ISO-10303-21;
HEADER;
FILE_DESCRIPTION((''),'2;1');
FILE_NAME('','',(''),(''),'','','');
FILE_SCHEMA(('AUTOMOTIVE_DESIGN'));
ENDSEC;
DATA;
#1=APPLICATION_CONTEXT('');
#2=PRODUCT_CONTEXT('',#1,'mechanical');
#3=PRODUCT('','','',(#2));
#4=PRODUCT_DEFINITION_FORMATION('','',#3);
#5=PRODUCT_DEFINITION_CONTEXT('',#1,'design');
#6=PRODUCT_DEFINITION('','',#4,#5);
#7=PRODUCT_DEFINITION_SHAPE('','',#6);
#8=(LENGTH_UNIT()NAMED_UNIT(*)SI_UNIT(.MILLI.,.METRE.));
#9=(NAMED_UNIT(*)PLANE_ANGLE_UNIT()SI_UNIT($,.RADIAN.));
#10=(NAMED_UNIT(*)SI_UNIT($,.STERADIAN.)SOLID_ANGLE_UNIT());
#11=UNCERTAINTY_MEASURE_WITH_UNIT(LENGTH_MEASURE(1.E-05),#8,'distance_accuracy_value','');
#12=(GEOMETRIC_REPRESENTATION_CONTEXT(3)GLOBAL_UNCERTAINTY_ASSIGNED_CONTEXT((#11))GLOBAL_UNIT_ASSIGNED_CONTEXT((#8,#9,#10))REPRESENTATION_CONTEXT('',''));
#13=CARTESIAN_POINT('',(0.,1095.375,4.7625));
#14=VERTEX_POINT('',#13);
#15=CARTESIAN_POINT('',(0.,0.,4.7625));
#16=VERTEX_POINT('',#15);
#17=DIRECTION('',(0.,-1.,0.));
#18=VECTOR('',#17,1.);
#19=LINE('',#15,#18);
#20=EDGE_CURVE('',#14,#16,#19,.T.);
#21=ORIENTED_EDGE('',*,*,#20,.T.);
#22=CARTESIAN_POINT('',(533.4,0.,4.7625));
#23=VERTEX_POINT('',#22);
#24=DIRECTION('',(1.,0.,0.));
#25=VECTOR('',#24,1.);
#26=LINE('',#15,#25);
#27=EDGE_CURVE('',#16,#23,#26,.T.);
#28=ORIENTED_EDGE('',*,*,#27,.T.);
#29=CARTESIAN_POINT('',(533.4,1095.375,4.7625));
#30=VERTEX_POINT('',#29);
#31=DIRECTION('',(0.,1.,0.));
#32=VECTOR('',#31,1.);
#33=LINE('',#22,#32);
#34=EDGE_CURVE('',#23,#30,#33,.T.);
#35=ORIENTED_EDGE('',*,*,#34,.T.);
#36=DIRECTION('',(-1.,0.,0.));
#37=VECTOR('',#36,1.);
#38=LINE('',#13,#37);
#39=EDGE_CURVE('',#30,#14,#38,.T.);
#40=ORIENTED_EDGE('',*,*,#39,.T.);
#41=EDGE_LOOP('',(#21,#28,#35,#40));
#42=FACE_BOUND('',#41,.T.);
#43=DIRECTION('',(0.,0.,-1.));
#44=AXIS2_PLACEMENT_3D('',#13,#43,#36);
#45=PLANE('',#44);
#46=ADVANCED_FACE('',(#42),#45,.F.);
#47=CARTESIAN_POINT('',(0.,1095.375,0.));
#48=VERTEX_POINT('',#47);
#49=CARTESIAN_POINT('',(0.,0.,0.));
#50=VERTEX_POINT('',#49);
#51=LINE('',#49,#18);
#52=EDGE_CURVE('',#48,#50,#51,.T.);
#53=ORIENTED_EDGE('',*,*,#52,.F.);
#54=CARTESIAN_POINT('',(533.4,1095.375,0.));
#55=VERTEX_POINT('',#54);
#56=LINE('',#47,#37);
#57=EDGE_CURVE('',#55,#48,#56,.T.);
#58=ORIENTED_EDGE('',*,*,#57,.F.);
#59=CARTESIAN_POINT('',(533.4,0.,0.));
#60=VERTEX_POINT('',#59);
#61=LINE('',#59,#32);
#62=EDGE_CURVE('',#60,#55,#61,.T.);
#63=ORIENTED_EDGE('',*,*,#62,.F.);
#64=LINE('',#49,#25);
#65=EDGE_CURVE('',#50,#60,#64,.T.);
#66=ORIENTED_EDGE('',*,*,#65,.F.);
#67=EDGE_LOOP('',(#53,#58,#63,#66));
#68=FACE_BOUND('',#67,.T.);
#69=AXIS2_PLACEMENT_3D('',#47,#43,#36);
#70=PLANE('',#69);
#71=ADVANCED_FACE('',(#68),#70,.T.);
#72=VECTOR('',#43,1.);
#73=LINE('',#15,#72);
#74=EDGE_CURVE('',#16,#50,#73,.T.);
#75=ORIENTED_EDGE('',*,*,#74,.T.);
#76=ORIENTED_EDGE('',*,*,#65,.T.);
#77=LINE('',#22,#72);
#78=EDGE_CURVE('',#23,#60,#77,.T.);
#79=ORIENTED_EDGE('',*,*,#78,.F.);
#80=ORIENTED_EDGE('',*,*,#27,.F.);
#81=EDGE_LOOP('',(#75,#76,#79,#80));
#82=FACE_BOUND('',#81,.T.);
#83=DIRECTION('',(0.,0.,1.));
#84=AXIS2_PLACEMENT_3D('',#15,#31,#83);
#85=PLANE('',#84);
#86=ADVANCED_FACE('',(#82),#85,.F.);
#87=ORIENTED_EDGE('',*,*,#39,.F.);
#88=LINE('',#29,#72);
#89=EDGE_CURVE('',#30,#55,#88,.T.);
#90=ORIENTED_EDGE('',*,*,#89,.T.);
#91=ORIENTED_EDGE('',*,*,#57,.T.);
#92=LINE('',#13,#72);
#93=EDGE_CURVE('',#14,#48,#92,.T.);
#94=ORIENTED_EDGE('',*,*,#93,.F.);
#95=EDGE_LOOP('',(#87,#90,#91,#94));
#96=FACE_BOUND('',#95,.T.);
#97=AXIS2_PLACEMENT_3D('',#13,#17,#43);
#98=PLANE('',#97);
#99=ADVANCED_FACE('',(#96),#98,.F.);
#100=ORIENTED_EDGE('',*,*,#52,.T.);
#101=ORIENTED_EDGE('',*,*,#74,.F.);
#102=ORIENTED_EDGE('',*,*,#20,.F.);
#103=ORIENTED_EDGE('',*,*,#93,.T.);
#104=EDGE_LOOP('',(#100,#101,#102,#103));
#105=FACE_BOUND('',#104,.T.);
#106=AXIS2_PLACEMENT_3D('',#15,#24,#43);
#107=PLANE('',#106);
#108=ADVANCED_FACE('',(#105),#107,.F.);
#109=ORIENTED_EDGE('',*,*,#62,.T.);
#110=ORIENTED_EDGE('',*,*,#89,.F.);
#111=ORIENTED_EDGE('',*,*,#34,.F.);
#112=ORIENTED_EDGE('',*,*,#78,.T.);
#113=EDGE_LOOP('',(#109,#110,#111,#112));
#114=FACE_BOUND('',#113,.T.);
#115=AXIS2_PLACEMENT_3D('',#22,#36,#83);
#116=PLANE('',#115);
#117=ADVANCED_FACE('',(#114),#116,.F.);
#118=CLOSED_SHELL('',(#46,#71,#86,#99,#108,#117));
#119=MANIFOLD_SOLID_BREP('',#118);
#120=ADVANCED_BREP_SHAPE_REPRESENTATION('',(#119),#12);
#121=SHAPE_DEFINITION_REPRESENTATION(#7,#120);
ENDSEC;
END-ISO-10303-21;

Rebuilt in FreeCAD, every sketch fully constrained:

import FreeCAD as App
import Part
import Sketcher
from FreeCAD import Vector
Q = App.Units.Quantity

doc = App.newDocument("Part")
params = doc.addObject("Spreadsheet::Sheet", "Params")
for row, (alias, value) in enumerate([
    ("sketch1_width", "21 in"),
    ("sketch1_height", "43.125 in"),
    ("pad1_length", "0.1875 in"),
], start=1):
    params.set(f"A{row}", alias)
    params.set(f"B{row}", "=" + value)
    params.setAlias(f"B{row}", alias)

body = doc.addObject("PartDesign::Body", "Body")

# Sketch on XY plane
sketch1 = body.newObject("Sketcher::SketchObject", "Sketch")
sketch1.AttachmentSupport = (doc.getObject("XY_Plane"), [""])
sketch1.MapMode = "FlatFace"
sketch1.addGeometry(Part.LineSegment(Vector(0, 1095, 0), Vector(0, 0, 0)), False)
sketch1.addGeometry(Part.LineSegment(Vector(0, 0, 0), Vector(533, 0, 0)), False)
sketch1.addGeometry(Part.LineSegment(Vector(533, 0, 0), Vector(533, 1095, 0)), False)
sketch1.addGeometry(Part.LineSegment(Vector(533, 1095, 0), Vector(0, 1095, 0)), False)
sketch1.addConstraint(Sketcher.Constraint("Coincident", 0, 2, 1, 1))
sketch1.addConstraint(Sketcher.Constraint("Coincident", 1, 2, 2, 1))
sketch1.addConstraint(Sketcher.Constraint("Coincident", 2, 2, 3, 1))
sketch1.addConstraint(Sketcher.Constraint("Coincident", 3, 2, 0, 1))
sketch1.addConstraint(Sketcher.Constraint("Vertical", 0))
sketch1.addConstraint(Sketcher.Constraint("Horizontal", 1))
sketch1.addConstraint(Sketcher.Constraint("Vertical", 2))
sketch1.addConstraint(Sketcher.Constraint("Horizontal", 3))
sketch1.addConstraint(Sketcher.Constraint("Coincident", 0, 2, -1, 1))
sketch1.addConstraint(Sketcher.Constraint("DistanceX", 1, 1, 1, 2, Q("21 in")))
sketch1.addConstraint(Sketcher.Constraint("DistanceY", 0, 2, 0, 1, Q("43.125 in")))
sketch1.setExpression("Constraints[9]", "Params.sketch1_width")
sketch1.setExpression("Constraints[10]", "Params.sketch1_height")
pad1 = body.newObject("PartDesign::Pad", "Pad")
pad1.Profile = sketch1
pad1.setExpression("Length", "Params.pad1_length")

doc.recompute()
